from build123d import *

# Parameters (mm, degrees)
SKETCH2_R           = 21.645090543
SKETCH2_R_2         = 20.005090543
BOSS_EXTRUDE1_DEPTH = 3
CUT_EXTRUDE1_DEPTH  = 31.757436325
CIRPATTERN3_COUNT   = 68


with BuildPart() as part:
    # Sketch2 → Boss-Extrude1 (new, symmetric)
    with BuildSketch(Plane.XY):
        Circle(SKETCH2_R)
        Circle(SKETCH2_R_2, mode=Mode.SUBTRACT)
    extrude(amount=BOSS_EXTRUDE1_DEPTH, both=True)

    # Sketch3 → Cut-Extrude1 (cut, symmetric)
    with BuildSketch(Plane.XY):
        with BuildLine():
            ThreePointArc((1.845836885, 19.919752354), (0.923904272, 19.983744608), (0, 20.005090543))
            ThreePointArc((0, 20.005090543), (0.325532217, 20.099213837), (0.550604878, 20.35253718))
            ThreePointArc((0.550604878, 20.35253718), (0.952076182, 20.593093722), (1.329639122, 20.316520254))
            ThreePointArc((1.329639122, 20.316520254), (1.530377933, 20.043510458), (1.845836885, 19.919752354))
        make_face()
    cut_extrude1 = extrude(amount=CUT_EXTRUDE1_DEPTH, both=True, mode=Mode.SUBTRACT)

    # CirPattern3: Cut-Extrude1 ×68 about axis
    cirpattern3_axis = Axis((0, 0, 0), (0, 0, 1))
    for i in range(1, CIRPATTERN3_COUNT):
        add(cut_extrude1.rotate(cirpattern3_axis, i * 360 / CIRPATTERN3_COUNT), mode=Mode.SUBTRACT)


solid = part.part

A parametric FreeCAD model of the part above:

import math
import FreeCAD as App
import Part
import Sketcher
from FreeCAD import Vector
Q = App.Units.Quantity

doc = App.newDocument("Part")
params = doc.addObject("Spreadsheet::Sheet", "Params")
for row, (alias, value) in enumerate([
    ("pad1_length", "6 mm"),
    ("sketch2_radius", "0.61 mm"),
    ("pocket1_length", "63.514873 mm"),
], start=1):
    params.set(f"A{row}", alias)
    params.set(f"B{row}", "=" + value)
    params.setAlias(f"B{row}", alias)

body = doc.addObject("PartDesign::Body", "Body")

# Sketch on XY plane
sketch1 = body.newObject("Sketcher::SketchObject", "Sketch")
sketch1.AttachmentSupport = (doc.getObject("XY_Plane"), [""])
sketch1.MapMode = "FlatFace"
sketch1.addGeometry(Part.Circle(Vector(0, 0, 0), Vector(0, 0, 1), 22), False)
sketch1.addGeometry(Part.Circle(Vector(0, 0, 0), Vector(0, 0, 1), 20), False)
sketch1.addConstraint(Sketcher.Constraint("Coincident", 0, 3, -1, 1))
sketch1.addConstraint(Sketcher.Constraint("Coincident", 1, 3, -1, 1))
sketch1.addConstraint(Sketcher.Constraint("Diameter", 0, Q("43.290181 mm")))
sketch1.addConstraint(Sketcher.Constraint("Diameter", 1, Q("40.010181 mm")))
pad1 = body.newObject("PartDesign::Pad", "Pad")
pad1.Profile = sketch1
pad1.setExpression("Length", "Params.pad1_length")
pad1.Midplane = True

# Sketch on XY plane
sketch2 = body.newObject("Sketcher::SketchObject", "Sketch001")
sketch2.AttachmentSupport = (doc.getObject("XY_Plane"), [""])
sketch2.MapMode = "FlatFace"
sketch2.addGeometry(Part.ArcOfCircle(Part.Circle(Vector(0, 0, 0), Vector(0, 0, 1), 20.01), math.radians(84.71), math.radians(90)), False)
sketch2.addGeometry(Part.ArcOfCircle(Part.Circle(Vector(1.9, 20.53, 0), Vector(0, 0, 1), 0.61), math.radians(-160), math.radians(-95)), False)
sketch2.addGeometry(Part.ArcOfCircle(Part.Circle(Vector(0.93, 20.17, 0), Vector(0, 0, 1), 0.42), math.radians(20), math.radians(155)), False)
sketch2.addGeometry(Part.ArcOfCircle(Part.Circle(Vector(0, 20.62, 0), Vector(0, 0, 1), 0.61), math.radians(-90), math.radians(-25)), False)
sketch2.addConstraint(Sketcher.Constraint("Tangent", 0, 1, 1, 2))
sketch2.addConstraint(Sketcher.Constraint("Tangent", 1, 1, 2, 1))
sketch2.addConstraint(Sketcher.Constraint("Tangent", 2, 2, 3, 2))
sketch2.addConstraint(Sketcher.Constraint("Tangent", 3, 1, 0, 2))
sketch2.addConstraint(Sketcher.Constraint("Coincident", 0, 3, -1, 1))
sketch2.addConstraint(Sketcher.Constraint("Equal", 1, 3))
sketch2.addConstraint(Sketcher.Constraint("PointOnObject", 3, 3, -2))
sketch2.addConstraint(Sketcher.Constraint("Radius", 1, Q("0.61 mm")))
sketch2.addConstraint(Sketcher.Constraint("Radius", 0, Q("20.00509 mm")))
sketch2.addConstraint(Sketcher.Constraint("Radius", 2, Q("0.423129 mm")))
sketch2.addConstraint(Sketcher.Constraint("DistanceX", -1, 1, 1, 3, Q("1.902121 mm")))
sketch2.setExpression("Constraints[7]", "Params.sketch2_radius")
pocket1 = body.newObject("PartDesign::Pocket", "Pocket")
pocket1.Profile = sketch2
pocket1.setExpression("Length", "Params.pocket1_length")
pocket1.Midplane = True
doc.recompute()

polarpattern = body.newObject("PartDesign::PolarPattern", "PolarPattern")
polarpattern.Originals = [pocket1]
polarpattern.Axis = (doc.getObject("Z_Axis"), [""])
polarpattern.Angle = 360
polarpattern.Occurrences = 68
body.Tip = polarpattern

doc.recompute()
